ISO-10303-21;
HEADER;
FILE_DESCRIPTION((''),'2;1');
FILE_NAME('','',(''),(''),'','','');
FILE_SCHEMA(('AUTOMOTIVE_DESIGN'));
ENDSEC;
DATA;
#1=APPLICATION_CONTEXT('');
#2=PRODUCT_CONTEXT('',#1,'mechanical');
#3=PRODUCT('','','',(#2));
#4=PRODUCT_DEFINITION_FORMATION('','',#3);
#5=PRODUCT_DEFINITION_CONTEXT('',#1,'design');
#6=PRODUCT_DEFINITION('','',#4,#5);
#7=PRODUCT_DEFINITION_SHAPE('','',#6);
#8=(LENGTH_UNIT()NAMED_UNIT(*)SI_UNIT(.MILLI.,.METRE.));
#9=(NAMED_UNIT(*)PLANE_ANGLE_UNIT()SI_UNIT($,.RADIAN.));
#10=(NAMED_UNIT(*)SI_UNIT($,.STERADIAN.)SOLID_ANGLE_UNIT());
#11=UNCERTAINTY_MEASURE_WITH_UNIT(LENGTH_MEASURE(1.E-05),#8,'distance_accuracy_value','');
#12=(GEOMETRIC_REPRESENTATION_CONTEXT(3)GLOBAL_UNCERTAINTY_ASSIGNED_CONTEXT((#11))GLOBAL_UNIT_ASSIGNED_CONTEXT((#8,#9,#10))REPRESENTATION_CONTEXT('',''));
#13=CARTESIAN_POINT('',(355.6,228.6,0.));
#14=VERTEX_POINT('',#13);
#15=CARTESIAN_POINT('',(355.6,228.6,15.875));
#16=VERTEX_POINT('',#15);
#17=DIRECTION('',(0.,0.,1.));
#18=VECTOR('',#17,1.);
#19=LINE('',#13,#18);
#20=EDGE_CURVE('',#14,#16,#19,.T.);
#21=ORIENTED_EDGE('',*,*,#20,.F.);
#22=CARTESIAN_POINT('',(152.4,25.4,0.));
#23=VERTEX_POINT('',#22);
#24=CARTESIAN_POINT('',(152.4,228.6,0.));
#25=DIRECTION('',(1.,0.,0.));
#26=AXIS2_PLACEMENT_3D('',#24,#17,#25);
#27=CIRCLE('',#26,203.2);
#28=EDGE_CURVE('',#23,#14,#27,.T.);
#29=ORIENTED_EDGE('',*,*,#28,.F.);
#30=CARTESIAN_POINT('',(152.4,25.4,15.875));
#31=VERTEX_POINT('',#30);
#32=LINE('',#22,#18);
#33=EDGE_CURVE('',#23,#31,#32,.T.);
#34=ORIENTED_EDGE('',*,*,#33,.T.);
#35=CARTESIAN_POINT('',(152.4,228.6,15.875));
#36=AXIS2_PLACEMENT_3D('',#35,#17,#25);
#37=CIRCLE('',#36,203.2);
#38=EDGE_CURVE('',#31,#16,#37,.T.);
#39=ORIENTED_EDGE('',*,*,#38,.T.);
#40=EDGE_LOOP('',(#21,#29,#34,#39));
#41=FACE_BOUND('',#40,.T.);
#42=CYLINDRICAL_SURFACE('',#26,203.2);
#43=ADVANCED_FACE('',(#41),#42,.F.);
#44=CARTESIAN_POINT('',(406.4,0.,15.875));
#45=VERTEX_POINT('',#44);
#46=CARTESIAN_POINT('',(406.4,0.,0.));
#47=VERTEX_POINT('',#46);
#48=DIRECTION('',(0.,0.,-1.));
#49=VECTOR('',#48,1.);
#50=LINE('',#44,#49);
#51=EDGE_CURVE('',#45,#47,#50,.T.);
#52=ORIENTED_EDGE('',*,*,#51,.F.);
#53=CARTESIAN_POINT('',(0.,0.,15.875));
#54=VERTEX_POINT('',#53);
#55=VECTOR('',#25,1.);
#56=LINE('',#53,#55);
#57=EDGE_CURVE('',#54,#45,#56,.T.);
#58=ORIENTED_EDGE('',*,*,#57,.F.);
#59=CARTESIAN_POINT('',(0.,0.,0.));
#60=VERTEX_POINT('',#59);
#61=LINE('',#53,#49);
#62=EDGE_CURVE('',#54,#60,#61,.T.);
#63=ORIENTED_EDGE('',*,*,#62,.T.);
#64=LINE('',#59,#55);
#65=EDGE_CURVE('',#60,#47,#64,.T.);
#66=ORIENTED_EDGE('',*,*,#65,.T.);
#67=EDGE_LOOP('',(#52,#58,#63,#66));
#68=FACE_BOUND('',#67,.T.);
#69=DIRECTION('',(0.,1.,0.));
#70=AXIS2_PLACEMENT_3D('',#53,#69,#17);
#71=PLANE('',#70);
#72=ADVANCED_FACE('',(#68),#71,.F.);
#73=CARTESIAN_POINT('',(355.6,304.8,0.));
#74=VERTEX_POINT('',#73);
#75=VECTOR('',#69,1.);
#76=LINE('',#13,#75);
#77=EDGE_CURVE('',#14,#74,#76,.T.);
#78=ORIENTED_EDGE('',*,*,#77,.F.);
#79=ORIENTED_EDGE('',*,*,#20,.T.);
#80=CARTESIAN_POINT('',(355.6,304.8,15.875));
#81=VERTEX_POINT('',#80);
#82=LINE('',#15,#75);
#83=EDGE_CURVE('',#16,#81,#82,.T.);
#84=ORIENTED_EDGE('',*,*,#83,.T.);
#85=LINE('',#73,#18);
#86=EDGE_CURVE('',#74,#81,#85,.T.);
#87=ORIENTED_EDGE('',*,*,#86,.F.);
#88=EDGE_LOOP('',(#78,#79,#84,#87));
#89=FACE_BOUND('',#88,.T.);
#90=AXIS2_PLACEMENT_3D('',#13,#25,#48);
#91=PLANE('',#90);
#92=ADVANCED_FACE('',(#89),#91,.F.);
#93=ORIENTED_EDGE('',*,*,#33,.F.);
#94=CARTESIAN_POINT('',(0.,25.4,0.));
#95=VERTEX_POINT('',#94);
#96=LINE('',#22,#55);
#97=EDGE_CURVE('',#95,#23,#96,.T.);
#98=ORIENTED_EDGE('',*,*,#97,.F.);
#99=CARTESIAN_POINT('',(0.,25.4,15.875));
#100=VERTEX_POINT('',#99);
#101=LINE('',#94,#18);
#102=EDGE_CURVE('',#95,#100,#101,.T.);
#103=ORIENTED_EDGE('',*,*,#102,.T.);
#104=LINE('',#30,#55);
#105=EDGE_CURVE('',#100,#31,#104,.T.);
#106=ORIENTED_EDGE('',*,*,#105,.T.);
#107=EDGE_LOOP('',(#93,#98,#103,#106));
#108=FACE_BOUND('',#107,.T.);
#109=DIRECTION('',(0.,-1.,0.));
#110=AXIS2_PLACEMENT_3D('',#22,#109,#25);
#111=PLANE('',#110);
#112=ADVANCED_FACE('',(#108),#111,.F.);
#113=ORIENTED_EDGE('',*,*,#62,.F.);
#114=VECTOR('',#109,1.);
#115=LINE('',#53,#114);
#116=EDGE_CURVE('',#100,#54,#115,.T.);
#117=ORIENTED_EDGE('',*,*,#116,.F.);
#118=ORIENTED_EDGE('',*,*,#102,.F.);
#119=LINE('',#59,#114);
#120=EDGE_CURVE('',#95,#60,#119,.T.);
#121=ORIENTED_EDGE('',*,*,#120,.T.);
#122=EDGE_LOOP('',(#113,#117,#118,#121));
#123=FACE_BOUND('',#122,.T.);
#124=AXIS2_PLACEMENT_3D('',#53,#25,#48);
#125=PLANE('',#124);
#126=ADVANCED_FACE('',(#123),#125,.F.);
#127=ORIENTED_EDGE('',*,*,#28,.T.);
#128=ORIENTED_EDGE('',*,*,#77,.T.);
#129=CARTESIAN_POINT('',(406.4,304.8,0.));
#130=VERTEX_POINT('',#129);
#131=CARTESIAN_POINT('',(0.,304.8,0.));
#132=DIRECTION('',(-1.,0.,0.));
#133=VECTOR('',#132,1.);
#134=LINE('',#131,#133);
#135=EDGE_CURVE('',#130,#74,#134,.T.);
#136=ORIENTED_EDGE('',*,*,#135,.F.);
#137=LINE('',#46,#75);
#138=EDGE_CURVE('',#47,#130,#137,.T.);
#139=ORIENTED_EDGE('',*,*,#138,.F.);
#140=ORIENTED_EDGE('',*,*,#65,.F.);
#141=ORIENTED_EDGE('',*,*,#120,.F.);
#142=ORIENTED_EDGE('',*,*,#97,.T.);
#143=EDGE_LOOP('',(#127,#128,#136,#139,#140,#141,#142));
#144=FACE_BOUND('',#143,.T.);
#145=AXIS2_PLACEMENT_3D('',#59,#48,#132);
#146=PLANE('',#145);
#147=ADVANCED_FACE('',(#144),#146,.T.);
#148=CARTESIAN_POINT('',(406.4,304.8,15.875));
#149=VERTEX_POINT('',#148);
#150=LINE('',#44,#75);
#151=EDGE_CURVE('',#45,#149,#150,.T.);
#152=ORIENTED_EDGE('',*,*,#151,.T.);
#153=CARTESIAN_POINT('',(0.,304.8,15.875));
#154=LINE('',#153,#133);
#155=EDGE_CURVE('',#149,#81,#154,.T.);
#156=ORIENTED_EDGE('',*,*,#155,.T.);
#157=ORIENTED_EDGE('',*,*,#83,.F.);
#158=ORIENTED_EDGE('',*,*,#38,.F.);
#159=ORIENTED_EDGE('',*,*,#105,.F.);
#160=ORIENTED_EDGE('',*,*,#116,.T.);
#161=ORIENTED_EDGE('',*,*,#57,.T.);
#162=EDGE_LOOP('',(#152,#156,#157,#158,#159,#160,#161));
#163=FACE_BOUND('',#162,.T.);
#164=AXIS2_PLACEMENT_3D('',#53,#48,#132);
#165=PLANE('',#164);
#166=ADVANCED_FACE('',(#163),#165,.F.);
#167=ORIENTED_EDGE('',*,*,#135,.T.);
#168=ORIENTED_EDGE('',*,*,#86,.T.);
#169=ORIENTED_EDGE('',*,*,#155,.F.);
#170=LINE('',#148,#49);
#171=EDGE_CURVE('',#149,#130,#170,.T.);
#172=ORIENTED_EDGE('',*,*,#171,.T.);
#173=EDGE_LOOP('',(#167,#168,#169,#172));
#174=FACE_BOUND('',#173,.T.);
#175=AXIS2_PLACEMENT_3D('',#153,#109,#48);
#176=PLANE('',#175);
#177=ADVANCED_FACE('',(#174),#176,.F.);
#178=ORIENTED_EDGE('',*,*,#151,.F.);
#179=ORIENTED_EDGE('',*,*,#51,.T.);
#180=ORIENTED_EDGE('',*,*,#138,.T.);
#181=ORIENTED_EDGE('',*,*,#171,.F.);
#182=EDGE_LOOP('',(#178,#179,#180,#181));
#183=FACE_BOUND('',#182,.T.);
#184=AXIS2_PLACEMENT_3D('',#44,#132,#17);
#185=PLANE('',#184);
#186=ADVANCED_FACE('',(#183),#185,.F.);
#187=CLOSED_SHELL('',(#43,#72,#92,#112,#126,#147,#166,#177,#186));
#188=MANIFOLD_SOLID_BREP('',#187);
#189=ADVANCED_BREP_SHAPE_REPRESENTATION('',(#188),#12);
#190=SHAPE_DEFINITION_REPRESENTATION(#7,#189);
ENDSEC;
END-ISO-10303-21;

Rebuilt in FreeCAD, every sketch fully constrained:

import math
import FreeCAD as App
import Part
import Sketcher
Q = App.Units.Quantity

doc = App.newDocument("Part")
params = doc.addObject("Spreadsheet::Sheet", "Params")
for row, (alias, value) in enumerate([
    ("sketch1_width", "16 in"),
    ("sketch1_height", "12 in"),
    ("pad1_length", "0.625 in"),
    ("sketch2_diameter", "0.75 in"),
    ("sketch3_radius", "8 in"),
    ("sketch3_width", "6 in"),
    ("sketch3_height", "3 in"),
], start=1):
    params.set(f"A{row}", alias)
    params.set(f"B{row}", "=" + value)
    params.setAlias(f"B{row}", alias)

body = doc.addObject("PartDesign::Body", "Body")

sketch1 = body.newObject("Sketcher::SketchObject", "Sketch")
sketch1.AttachmentSupport = (doc.getObject("XY_Plane"), [""])
sketch1.MapMode = "FlatFace"
sketch1.addGeometry(Part.LineSegment(App.Vector(0, 305, 0), App.Vector(0, 0, 0)), False)
sketch1.addGeometry(Part.LineSegment(App.Vector(0, 0, 0), App.Vector(406, 0, 0)), False)
sketch1.addGeometry(Part.LineSegment(App.Vector(406, 0, 0), App.Vector(406, 305, 0)), False)
sketch1.addGeometry(Part.LineSegment(App.Vector(406, 305, 0), App.Vector(0, 305, 0)), False)
sketch1.addConstraint(Sketcher.Constraint("Coincident", 0, 2, 1, 1))
sketch1.addConstraint(Sketcher.Constraint("Coincident", 1, 2, 2, 1))
sketch1.addConstraint(Sketcher.Constraint("Coincident", 2, 2, 3, 1))
sketch1.addConstraint(Sketcher.Constraint("Coincident", 3, 2, 0, 1))
sketch1.addConstraint(Sketcher.Constraint("Vertical", 0))
sketch1.addConstraint(Sketcher.Constraint("Horizontal", 1))
sketch1.addConstraint(Sketcher.Constraint("Vertical", 2))
sketch1.addConstraint(Sketcher.Constraint("Horizontal", 3))
sketch1.addConstraint(Sketcher.Constraint("Coincident", 0, 2, -1, 1))
sketch1.addConstraint(Sketcher.Constraint("DistanceX", 1, 1, 1, 2, Q("16 in")))
sketch1.addConstraint(Sketcher.Constraint("DistanceY", 0, 2, 0, 1, Q("12 in")))
sketch1.setExpression("Constraints[9]", "Params.sketch1_width")
sketch1.setExpression("Constraints[10]", "Params.sketch1_height")
pad1 = body.newObject("PartDesign::Pad", "Pad")
pad1.Profile = sketch1
pad1.setExpression("Length", "Params.pad1_length")

sketch2 = body.newObject("Sketcher::SketchObject", "Sketch001")
sketch2.AttachmentSupport = (doc.getObject("XY_Plane"), [""])
sketch2.MapMode = "FlatFace"
sketch2.AttachmentOffset = App.Placement(App.Vector(0, 0, 0.625 * 25.4), App.Rotation())
sketch2.addGeometry(Part.Circle(App.Vector(152, 229, 0), App.Vector(0, 0, 1), 10), False)
sketch2.addConstraint(Sketcher.Constraint("Diameter", 0, Q("0.75 in")))
sketch2.addConstraint(Sketcher.Constraint("DistanceX", -1, 1, 0, 3, Q("6 in")))
sketch2.addConstraint(Sketcher.Constraint("DistanceY", -1, 1, 0, 3, Q("9 in")))
sketch2.setExpression("Constraints[0]", "Params.sketch2_diameter")
pocket1 = body.newObject("PartDesign::Pocket", "Pocket")
pocket1.Profile = sketch2
pocket1.Type = "ThroughAll"

sketch3 = body.newObject("Sketcher::SketchObject", "Sketch002")
sketch3.AttachmentSupport = (doc.getObject("XY_Plane"), [""])
sketch3.MapMode = "FlatFace"
sketch3.AttachmentOffset = App.Placement(App.Vector(0, 0, 0.625 * 25.4), App.Rotation())
sketch3.addGeometry(Part.LineSegment(App.Vector(0, 25, 0), App.Vector(152, 25, 0)), False)
sketch3.addGeometry(Part.ArcOfCircle(Part.Circle(App.Vector(152, 229, 0), App.Vector(0, 0, 1), 203), math.radians(-90), math.radians(0)), False)
sketch3.addGeometry(Part.LineSegment(App.Vector(356, 229, 0), App.Vector(356, 305, 0)), False)
sketch3.addGeometry(Part.LineSegment(App.Vector(356, 305, 0), App.Vector(0, 305, 0)), False)
sketch3.addGeometry(Part.LineSegment(App.Vector(0, 305, 0), App.Vector(0, 25, 0)), False)
sketch3.addConstraint(Sketcher.Constraint("Tangent", 0, 2, 1, 1))
sketch3.addConstraint(Sketcher.Constraint("Tangent", 1, 2, 2, 1))
sketch3.addConstraint(Sketcher.Constraint("Coincident", 2, 2, 3, 1))
sketch3.addConstraint(Sketcher.Constraint("Coincident", 3, 2, 4, 1))
sketch3.addConstraint(Sketcher.Constraint("Coincident", 4, 2, 0, 1))
sketch3.addConstraint(Sketcher.Constraint("Horizontal", 0))
sketch3.addConstraint(Sketcher.Constraint("Vertical", 2))
sketch3.addConstraint(Sketcher.Constraint("Horizontal", 3))
sketch3.addConstraint(Sketcher.Constraint("Vertical", 4))
sketch3.addConstraint(Sketcher.Constraint("PointOnObject", 3, 2, -2))
sketch3.addConstraint(Sketcher.Constraint("Radius", 1, Q("8 in")))
sketch3.addConstraint(Sketcher.Constraint("DistanceX", 0, 1, 0, 2, Q("6 in")))
sketch3.addConstraint(Sketcher.Constraint("DistanceY", 2, 1, 2, 2, Q("3 in")))
sketch3.addConstraint(Sketcher.Constraint("DistanceY", -1, 1, 1, 3, Q("9 in")))
sketch3.setExpression("Constraints[10]", "Params.sketch3_radius")
sketch3.setExpression("Constraints[11]", "Params.sketch3_width")
sketch3.setExpression("Constraints[12]", "Params.sketch3_height")
pocket2 = body.newObject("PartDesign::Pocket", "Pocket001")
pocket2.Profile = sketch3
pocket2.Type = "ThroughAll"

doc.recompute()
